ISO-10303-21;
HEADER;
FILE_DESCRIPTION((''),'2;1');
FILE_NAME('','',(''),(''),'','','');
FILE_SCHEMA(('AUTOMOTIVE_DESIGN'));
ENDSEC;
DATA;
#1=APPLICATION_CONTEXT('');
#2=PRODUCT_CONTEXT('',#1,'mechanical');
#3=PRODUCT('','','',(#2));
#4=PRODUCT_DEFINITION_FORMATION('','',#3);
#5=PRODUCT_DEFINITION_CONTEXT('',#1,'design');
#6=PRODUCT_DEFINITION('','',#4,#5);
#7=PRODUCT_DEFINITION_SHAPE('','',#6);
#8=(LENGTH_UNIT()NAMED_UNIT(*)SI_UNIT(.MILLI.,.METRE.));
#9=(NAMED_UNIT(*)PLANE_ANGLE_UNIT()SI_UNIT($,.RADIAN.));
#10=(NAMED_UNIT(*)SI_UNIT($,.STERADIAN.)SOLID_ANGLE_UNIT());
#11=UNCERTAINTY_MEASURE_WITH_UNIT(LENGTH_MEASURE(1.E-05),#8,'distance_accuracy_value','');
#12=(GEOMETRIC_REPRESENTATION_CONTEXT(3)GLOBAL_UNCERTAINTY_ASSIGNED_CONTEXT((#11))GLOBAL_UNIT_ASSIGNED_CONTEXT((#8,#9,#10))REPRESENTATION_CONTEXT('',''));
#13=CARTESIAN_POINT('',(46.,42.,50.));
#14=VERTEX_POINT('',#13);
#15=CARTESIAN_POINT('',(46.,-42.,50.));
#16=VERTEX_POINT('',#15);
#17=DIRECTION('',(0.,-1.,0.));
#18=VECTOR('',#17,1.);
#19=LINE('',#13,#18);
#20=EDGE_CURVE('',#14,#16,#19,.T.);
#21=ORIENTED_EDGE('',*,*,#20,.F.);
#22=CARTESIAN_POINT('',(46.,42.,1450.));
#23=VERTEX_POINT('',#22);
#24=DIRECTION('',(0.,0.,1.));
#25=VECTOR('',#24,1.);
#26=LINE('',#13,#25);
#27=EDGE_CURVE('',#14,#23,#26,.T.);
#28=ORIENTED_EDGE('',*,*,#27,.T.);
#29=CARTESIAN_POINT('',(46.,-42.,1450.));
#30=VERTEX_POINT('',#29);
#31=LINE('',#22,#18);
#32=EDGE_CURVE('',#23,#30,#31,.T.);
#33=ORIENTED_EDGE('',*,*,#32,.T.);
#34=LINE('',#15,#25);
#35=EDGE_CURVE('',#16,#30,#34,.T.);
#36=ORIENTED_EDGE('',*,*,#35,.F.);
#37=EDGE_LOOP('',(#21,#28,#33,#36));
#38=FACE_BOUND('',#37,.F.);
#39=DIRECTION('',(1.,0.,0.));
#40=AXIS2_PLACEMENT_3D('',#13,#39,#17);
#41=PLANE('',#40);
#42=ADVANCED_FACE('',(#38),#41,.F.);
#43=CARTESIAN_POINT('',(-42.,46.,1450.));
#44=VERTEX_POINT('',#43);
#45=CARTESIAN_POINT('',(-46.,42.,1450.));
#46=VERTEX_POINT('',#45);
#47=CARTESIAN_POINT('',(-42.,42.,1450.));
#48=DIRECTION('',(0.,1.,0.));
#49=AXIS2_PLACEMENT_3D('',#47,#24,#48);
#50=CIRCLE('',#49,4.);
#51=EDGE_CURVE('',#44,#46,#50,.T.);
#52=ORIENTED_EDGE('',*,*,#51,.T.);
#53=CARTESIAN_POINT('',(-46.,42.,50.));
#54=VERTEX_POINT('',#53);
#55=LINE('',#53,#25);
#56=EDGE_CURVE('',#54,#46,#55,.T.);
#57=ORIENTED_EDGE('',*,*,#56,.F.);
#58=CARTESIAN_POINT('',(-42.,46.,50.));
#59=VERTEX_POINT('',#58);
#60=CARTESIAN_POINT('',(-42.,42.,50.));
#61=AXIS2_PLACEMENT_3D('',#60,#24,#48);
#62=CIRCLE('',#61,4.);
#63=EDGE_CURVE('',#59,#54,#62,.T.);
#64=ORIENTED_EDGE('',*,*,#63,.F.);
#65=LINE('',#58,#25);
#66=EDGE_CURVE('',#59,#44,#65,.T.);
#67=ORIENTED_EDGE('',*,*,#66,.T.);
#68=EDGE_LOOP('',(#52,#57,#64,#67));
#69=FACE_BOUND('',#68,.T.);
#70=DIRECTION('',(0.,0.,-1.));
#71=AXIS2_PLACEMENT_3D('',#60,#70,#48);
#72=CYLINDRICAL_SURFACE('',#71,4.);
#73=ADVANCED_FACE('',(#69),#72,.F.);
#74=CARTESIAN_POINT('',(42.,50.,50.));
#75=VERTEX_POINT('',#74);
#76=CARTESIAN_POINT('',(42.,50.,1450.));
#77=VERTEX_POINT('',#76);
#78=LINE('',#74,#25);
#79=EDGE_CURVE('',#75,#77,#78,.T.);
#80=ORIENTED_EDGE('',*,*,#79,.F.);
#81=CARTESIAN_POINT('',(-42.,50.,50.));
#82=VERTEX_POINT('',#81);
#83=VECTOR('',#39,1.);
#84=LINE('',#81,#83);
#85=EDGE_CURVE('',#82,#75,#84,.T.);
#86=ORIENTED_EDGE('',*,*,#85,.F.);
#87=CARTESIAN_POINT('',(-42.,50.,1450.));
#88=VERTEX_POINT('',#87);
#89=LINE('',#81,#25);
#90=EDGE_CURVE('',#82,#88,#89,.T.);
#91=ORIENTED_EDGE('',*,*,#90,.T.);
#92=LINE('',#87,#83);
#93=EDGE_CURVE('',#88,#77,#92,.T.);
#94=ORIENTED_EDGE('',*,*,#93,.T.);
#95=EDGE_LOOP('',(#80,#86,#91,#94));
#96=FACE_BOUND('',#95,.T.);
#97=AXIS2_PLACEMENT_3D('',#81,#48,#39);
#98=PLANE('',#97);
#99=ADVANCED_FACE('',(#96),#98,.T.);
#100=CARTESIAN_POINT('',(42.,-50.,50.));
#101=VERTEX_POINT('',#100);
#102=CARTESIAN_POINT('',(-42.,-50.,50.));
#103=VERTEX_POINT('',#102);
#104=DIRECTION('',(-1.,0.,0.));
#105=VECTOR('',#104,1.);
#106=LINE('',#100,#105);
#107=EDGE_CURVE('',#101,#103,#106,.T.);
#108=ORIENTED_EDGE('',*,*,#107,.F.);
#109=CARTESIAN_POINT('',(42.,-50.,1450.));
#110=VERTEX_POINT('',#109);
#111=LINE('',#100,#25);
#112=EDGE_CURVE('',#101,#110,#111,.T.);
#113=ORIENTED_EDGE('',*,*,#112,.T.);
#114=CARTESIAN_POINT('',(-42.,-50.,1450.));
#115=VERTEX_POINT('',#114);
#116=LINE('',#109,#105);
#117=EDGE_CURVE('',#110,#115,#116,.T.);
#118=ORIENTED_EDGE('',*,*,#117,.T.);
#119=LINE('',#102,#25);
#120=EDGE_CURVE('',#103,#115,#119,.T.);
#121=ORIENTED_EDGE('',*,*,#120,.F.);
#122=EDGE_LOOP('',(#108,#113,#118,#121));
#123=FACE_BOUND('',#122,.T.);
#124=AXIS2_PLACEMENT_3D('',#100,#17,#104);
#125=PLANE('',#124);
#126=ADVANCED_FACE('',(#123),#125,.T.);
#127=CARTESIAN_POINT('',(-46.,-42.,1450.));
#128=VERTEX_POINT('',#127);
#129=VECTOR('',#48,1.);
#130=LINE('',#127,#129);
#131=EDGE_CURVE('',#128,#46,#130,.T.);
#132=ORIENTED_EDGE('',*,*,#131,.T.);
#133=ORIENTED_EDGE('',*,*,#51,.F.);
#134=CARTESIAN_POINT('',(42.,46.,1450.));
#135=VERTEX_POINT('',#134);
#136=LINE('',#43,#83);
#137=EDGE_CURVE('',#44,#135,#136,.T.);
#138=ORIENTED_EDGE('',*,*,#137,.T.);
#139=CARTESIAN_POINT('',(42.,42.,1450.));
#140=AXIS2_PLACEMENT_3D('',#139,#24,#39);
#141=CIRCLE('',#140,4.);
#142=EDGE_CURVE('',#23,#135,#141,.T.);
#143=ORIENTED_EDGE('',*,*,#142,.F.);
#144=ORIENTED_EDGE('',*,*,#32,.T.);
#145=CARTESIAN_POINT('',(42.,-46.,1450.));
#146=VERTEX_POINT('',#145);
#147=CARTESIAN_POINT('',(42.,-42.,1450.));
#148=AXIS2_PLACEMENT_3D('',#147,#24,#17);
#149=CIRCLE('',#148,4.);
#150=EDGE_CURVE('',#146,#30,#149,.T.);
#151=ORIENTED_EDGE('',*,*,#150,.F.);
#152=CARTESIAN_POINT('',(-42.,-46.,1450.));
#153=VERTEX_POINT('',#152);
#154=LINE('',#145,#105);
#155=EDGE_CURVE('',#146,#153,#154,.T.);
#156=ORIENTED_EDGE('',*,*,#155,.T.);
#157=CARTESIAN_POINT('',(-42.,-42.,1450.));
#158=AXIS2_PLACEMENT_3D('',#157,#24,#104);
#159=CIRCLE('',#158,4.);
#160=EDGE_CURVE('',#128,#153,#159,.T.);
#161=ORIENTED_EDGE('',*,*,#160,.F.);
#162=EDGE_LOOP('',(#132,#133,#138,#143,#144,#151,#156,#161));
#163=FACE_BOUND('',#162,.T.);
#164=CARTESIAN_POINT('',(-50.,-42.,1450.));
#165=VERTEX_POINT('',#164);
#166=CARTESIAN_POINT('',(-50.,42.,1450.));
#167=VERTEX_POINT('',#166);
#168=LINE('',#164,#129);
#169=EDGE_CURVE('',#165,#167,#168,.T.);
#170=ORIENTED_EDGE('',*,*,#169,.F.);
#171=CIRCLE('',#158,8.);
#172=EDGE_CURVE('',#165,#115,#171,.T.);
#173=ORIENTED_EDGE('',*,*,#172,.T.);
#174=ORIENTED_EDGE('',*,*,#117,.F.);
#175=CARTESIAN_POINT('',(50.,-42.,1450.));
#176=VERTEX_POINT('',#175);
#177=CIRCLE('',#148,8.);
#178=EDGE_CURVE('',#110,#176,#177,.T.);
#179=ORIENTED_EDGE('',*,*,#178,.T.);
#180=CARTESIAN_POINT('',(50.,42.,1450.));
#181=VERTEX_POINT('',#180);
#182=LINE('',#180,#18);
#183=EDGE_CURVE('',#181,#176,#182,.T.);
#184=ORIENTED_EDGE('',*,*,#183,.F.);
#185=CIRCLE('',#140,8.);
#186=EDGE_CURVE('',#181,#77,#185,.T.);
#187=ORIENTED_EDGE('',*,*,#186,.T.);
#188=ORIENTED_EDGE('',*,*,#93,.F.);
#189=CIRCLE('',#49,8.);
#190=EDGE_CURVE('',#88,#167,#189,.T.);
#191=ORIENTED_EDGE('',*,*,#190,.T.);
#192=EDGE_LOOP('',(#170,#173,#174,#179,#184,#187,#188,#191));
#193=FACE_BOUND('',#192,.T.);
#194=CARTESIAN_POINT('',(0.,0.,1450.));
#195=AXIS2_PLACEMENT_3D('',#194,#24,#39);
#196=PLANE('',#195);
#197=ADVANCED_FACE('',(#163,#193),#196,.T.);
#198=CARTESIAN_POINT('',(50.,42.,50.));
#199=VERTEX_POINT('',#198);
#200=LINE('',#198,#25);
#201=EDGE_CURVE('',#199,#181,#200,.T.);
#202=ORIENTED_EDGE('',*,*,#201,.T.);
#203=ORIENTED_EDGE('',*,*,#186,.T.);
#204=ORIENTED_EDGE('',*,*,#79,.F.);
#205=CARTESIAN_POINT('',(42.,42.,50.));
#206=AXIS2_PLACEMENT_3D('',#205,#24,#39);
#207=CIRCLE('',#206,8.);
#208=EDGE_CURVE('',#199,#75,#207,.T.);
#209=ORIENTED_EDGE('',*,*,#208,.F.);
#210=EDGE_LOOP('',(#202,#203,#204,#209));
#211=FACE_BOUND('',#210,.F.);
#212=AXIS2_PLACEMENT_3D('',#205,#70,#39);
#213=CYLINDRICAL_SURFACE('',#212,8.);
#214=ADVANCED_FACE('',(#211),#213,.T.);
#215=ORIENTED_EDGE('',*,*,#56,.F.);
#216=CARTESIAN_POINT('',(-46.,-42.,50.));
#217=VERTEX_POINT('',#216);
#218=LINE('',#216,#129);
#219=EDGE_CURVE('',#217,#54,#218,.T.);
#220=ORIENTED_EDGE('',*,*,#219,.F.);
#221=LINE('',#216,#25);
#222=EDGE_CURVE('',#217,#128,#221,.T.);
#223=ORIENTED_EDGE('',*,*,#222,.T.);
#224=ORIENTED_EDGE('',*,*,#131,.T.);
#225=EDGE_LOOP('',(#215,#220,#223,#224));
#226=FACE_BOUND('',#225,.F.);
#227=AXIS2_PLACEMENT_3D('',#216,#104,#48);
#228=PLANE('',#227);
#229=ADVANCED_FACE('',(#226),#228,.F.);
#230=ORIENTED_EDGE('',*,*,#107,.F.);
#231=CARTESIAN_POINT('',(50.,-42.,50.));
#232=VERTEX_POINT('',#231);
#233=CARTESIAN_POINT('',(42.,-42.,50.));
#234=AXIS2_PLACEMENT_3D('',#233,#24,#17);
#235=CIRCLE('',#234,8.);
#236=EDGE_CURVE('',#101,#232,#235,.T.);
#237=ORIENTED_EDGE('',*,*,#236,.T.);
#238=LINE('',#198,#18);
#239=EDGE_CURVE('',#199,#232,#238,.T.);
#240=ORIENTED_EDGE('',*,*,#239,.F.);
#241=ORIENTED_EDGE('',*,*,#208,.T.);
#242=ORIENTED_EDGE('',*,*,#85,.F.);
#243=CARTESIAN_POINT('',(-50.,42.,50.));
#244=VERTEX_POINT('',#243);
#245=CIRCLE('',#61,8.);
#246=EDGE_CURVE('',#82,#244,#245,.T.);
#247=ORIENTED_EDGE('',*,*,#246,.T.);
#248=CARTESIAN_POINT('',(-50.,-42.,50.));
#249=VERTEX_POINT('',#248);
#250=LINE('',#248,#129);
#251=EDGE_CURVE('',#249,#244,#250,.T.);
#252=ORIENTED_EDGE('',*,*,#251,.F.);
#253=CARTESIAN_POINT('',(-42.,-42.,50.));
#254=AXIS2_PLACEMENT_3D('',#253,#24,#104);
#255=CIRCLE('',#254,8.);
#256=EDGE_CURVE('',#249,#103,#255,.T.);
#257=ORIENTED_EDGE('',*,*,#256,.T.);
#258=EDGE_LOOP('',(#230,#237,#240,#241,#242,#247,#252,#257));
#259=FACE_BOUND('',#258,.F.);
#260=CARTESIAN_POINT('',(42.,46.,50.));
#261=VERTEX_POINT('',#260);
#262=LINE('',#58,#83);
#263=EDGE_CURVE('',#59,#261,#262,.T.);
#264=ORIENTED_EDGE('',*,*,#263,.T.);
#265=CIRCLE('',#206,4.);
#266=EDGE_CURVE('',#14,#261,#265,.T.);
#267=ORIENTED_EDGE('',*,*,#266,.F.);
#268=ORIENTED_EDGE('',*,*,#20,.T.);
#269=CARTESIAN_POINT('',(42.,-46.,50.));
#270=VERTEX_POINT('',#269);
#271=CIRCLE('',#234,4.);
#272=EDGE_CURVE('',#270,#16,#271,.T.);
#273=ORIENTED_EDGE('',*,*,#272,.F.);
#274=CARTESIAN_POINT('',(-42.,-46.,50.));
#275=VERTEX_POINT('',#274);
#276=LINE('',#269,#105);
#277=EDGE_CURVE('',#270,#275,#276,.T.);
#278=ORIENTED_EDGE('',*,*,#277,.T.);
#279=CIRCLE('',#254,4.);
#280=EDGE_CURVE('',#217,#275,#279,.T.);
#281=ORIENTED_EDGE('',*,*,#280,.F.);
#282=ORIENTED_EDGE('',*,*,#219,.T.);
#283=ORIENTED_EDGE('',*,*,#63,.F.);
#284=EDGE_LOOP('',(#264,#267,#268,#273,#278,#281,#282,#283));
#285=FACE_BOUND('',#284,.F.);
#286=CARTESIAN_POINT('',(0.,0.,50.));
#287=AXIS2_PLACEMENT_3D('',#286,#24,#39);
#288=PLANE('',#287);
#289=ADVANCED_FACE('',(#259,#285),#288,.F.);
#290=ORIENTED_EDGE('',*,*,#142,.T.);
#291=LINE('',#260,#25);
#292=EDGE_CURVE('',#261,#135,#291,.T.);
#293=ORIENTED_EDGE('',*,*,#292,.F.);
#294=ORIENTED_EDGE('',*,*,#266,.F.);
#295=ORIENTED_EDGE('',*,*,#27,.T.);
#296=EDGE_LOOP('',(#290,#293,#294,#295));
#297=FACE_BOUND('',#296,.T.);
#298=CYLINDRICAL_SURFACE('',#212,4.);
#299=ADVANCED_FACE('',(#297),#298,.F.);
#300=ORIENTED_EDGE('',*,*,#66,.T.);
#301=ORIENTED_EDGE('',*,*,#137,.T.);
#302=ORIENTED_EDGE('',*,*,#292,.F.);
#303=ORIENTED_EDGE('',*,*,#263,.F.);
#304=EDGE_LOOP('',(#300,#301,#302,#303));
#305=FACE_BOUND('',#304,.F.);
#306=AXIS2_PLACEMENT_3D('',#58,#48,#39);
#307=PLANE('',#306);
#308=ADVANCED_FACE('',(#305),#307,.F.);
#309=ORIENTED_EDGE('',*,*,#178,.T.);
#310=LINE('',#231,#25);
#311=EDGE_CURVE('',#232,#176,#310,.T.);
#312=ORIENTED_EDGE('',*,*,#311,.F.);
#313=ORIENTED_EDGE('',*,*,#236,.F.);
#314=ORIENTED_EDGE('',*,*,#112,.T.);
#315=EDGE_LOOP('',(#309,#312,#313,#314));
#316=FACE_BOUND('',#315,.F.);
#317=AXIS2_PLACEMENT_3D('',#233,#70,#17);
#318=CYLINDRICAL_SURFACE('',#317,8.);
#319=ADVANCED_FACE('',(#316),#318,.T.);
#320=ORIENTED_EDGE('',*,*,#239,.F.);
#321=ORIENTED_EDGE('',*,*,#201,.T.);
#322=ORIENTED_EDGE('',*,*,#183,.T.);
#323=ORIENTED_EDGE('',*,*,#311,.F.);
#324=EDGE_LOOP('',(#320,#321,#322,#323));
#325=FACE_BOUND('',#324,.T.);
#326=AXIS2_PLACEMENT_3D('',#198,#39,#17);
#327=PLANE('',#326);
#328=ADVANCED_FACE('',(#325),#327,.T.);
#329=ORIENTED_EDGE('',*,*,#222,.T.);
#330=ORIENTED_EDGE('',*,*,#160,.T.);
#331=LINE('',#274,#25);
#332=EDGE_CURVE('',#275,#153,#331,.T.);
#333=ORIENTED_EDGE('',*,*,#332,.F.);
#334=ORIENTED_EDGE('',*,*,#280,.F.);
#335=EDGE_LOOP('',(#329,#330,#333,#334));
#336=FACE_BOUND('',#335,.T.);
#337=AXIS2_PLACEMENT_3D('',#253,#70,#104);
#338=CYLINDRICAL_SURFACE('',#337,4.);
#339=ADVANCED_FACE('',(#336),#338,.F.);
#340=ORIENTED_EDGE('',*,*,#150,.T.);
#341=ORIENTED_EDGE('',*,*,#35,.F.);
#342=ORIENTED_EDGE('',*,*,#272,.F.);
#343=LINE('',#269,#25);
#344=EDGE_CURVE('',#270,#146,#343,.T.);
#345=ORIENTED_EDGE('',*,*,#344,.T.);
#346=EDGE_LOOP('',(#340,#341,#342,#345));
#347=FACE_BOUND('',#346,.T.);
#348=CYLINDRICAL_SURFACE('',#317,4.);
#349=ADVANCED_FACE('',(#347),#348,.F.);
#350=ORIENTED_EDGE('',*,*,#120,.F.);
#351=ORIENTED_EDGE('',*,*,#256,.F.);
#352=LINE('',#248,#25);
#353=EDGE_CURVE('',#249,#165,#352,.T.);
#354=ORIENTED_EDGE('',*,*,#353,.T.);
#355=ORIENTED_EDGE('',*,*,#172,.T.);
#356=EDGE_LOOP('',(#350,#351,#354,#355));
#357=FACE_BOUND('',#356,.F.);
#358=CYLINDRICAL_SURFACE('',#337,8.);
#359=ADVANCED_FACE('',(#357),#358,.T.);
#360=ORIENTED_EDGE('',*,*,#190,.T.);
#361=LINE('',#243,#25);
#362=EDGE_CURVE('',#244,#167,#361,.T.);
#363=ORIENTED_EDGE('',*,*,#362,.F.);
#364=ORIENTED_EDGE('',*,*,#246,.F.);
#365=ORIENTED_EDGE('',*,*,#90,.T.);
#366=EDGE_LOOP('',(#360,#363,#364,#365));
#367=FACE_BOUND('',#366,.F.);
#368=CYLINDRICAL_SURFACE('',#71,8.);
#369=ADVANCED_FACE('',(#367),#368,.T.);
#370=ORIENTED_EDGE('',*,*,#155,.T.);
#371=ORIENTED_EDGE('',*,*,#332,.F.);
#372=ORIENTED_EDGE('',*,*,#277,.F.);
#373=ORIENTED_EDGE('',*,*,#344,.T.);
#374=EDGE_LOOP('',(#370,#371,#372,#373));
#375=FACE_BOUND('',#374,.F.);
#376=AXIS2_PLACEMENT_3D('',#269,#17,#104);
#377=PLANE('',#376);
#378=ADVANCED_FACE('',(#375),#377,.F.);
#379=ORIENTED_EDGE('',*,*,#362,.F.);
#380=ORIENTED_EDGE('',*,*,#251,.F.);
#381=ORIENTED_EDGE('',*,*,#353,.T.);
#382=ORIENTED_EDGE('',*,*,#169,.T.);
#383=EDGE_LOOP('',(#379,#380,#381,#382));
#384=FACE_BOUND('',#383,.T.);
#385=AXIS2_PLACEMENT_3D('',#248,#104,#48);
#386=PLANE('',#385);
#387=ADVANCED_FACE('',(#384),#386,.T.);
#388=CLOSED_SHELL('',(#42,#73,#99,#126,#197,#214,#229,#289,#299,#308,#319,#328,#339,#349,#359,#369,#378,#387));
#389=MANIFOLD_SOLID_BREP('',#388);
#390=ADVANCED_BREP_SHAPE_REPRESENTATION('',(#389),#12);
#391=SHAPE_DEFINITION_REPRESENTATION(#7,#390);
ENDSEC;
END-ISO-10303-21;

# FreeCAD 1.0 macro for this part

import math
import FreeCAD as App
import Part
import Sketcher

doc = App.newDocument("Part")
body = doc.addObject("PartDesign::Body", "Body")

# Sketch on XY plane
sketch1 = body.newObject("Sketcher::SketchObject", "Sketch")
sketch1.AttachmentSupport = (doc.getObject("XY_Plane"), [""])
sketch1.MapMode = "FlatFace"
sketch1.AttachmentOffset = App.Placement(App.Vector(0, 0, 50), App.Rotation())
sketch1.addGeometry([
    Part.LineSegment(App.Vector(-50, 42, 0), App.Vector(-50, -42, 0)),  # 0
    Part.ArcOfCircle(Part.Circle(App.Vector(-42, -42, 0), App.Vector(0, 0, 1), 8), math.radians(180), math.radians(270)),  # 1
    Part.LineSegment(App.Vector(-42, -50, 0), App.Vector(42, -50, 0)),  # 2
    Part.ArcOfCircle(Part.Circle(App.Vector(42, -42, 0), App.Vector(0, 0, 1), 8), math.radians(-90), math.radians(0)),  # 3
    Part.LineSegment(App.Vector(50, -42, 0), App.Vector(50, 42, 0)),  # 4
    Part.ArcOfCircle(Part.Circle(App.Vector(42, 42, 0), App.Vector(0, 0, 1), 8), math.radians(0), math.radians(90)),  # 5
    Part.LineSegment(App.Vector(42, 50, 0), App.Vector(-42, 50, 0)),  # 6
    Part.ArcOfCircle(Part.Circle(App.Vector(-42, 42, 0), App.Vector(0, 0, 1), 8), math.radians(90), math.radians(180)),  # 7
    Part.ArcOfCircle(Part.Circle(App.Vector(-42, 42, 0), App.Vector(0, 0, 1), 4), math.radians(90), math.radians(180)),  # 8
    Part.LineSegment(App.Vector(-42, 46, 0), App.Vector(42, 46, 0)),  # 9
    Part.ArcOfCircle(Part.Circle(App.Vector(42, 42, 0), App.Vector(0, 0, 1), 4), math.radians(0), math.radians(90)),  # 10
    Part.LineSegment(App.Vector(46, 42, 0), App.Vector(46, -42, 0)),  # 11
    Part.ArcOfCircle(Part.Circle(App.Vector(42, -42, 0), App.Vector(0, 0, 1), 4), math.radians(-90), math.radians(0)),  # 12
    Part.LineSegment(App.Vector(42, -46, 0), App.Vector(-42, -46, 0)),  # 13
    Part.ArcOfCircle(Part.Circle(App.Vector(-42, -42, 0), App.Vector(0, 0, 1), 4), math.radians(180), math.radians(270)),  # 14
    Part.LineSegment(App.Vector(-46, -42, 0), App.Vector(-46, 42, 0)),  # 15
], False)
sketch1.addConstraint([
    Sketcher.Constraint("Tangent", 0, 2, 1, 1),
    Sketcher.Constraint("Tangent", 1, 2, 2, 1),
    Sketcher.Constraint("Tangent", 2, 2, 3, 1),
    Sketcher.Constraint("Tangent", 3, 2, 4, 1),
    Sketcher.Constraint("Tangent", 4, 2, 5, 1),
    Sketcher.Constraint("Tangent", 5, 2, 6, 1),
    Sketcher.Constraint("Tangent", 6, 2, 7, 1),
    Sketcher.Constraint("Tangent", 7, 2, 0, 1),
    Sketcher.Constraint("Tangent", 8, 1, 9, 1),
    Sketcher.Constraint("Tangent", 9, 2, 10, 2),
    Sketcher.Constraint("Tangent", 10, 1, 11, 1),
    Sketcher.Constraint("Tangent", 11, 2, 12, 2),
    Sketcher.Constraint("Tangent", 12, 1, 13, 1),
    Sketcher.Constraint("Tangent", 13, 2, 14, 2),
    Sketcher.Constraint("Tangent", 14, 1, 15, 1),
    Sketcher.Constraint("Tangent", 15, 2, 8, 2),
    Sketcher.Constraint("Vertical", 0),
    Sketcher.Constraint("Horizontal", 2),
    Sketcher.Constraint("Vertical", 4),
    Sketcher.Constraint("Horizontal", 6),
    Sketcher.Constraint("Horizontal", 9),
    Sketcher.Constraint("Vertical", 11),
    Sketcher.Constraint("Horizontal", 13),
    Sketcher.Constraint("Vertical", 15),
    Sketcher.Constraint("Coincident", 8, 3, 7, 3),
    Sketcher.Constraint("Coincident", 10, 3, 5, 3),
    Sketcher.Constraint("Coincident", 12, 3, 3, 3),
    Sketcher.Constraint("Equal", 1, 3),
    Sketcher.Constraint("Equal", 3, 5),
    Sketcher.Constraint("Equal", 5, 7),
    Sketcher.Constraint("Equal", 12, 14),
    Sketcher.Constraint("Symmetric", 1, 3, 5, 3, -1, 1),
    Sketcher.Constraint("Equal", 13, 0),
    Sketcher.Constraint("Radius", 1, 8.0),
    Sketcher.Constraint("Radius", 8, 4.0),
    Sketcher.Constraint("DistanceX", 0, 2, -1, 1, 50.0),
])
pad1 = body.newObject("PartDesign::Pad", "Pad")
pad1.Profile = sketch1
pad1.Length = 1400

doc.recompute()
